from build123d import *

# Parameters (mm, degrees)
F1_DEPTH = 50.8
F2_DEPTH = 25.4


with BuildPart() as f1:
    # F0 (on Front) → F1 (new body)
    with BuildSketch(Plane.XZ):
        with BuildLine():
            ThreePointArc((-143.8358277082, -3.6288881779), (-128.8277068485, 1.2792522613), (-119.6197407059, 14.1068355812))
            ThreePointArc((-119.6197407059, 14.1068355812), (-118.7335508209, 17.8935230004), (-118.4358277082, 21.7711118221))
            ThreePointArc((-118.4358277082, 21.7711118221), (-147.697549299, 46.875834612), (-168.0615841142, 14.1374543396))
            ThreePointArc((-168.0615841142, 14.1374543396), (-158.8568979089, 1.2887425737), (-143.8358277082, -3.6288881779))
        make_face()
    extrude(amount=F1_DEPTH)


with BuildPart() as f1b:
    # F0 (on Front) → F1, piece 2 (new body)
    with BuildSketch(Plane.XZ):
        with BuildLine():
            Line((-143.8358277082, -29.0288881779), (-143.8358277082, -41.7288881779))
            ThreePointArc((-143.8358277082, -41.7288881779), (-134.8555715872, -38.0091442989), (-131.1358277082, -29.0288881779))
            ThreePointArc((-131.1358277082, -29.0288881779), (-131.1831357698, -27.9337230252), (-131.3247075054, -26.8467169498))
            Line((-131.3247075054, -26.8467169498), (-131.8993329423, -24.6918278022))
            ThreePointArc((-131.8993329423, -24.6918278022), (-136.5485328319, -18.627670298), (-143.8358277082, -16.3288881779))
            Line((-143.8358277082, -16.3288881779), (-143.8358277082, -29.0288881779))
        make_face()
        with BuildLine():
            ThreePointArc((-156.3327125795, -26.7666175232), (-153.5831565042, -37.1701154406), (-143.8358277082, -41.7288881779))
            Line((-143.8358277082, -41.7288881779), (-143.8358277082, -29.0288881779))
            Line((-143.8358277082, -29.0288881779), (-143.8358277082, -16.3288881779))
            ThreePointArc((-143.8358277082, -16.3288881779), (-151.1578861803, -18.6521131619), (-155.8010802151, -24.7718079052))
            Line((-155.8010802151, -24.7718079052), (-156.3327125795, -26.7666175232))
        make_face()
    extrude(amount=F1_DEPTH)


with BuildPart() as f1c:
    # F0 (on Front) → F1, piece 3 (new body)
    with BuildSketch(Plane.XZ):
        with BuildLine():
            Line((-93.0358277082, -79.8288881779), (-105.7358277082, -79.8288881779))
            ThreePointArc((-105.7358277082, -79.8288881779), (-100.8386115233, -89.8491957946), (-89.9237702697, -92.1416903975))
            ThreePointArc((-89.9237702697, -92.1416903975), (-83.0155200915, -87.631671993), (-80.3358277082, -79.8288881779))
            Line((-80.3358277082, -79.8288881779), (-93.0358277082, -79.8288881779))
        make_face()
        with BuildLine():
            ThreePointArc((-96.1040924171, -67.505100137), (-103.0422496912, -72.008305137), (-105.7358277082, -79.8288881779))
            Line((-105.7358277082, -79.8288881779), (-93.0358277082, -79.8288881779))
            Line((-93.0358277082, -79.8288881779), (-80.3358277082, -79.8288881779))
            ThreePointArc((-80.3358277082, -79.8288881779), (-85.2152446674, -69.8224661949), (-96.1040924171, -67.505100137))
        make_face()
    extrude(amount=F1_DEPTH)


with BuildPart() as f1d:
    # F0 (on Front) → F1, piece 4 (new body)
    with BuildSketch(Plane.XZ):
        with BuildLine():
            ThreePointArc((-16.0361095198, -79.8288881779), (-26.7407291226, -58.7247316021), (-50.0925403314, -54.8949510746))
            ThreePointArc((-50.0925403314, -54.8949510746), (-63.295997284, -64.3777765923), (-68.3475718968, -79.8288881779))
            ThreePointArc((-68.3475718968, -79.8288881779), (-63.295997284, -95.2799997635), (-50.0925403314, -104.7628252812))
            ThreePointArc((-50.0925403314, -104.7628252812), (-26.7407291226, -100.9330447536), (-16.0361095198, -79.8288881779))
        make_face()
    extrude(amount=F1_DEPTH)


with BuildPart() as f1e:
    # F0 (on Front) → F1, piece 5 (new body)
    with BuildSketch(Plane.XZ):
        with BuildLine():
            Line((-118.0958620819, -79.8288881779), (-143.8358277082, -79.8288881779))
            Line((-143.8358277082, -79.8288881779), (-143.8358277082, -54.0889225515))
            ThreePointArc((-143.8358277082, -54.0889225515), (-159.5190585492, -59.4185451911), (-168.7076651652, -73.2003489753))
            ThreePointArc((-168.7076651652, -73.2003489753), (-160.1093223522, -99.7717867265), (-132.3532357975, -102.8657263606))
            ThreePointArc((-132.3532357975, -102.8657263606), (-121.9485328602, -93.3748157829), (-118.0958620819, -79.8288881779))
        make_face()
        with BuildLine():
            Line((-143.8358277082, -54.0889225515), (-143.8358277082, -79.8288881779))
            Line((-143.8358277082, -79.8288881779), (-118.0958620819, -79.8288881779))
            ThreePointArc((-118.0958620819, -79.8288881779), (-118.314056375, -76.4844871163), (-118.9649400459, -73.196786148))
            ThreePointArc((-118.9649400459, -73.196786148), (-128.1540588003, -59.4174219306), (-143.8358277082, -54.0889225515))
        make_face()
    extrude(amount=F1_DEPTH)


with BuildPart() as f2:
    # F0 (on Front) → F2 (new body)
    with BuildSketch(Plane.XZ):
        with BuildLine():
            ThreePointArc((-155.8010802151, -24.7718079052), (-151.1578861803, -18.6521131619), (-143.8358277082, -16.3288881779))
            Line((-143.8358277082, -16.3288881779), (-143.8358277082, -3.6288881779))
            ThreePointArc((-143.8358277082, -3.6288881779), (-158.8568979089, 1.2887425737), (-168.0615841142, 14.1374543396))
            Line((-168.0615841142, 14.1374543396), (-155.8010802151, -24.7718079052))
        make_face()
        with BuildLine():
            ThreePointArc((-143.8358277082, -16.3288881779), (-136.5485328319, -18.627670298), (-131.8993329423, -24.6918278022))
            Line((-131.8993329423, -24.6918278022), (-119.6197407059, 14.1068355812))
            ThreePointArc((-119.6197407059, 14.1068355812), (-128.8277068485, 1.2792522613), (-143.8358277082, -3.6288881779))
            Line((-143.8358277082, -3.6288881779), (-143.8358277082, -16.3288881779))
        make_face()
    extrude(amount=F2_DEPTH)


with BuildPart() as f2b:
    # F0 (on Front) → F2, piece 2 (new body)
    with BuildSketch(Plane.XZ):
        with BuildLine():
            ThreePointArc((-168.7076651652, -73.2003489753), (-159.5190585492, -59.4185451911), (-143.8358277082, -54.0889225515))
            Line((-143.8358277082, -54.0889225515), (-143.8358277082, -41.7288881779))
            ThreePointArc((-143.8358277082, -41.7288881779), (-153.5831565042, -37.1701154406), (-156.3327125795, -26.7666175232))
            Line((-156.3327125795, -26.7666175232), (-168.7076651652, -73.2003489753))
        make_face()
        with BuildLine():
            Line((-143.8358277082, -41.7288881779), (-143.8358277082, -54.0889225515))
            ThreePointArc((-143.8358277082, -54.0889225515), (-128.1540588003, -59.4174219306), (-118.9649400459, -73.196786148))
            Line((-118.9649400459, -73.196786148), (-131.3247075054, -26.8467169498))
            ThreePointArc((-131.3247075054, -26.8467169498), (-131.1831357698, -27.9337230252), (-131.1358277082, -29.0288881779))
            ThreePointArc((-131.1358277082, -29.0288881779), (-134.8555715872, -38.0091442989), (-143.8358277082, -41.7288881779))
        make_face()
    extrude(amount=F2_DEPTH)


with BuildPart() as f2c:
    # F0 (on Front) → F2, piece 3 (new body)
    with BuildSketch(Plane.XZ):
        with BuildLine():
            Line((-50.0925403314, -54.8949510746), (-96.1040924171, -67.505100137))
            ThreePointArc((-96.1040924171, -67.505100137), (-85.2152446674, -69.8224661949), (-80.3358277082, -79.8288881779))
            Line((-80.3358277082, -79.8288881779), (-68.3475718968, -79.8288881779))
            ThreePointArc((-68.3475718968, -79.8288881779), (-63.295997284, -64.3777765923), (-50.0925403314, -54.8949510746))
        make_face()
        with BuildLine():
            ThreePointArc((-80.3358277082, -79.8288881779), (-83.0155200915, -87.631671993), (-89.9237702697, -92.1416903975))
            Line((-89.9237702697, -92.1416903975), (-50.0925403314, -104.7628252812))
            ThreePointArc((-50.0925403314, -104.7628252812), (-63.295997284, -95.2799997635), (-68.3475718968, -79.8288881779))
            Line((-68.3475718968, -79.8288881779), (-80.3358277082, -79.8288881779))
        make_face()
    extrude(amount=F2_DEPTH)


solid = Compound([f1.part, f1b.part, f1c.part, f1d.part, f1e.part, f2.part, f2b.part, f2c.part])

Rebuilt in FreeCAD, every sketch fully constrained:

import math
import FreeCAD as App
import Part
import Sketcher
from FreeCAD import Vector
Q = App.Units.Quantity

doc = App.newDocument("Part")
body = doc.addObject("PartDesign::Body", "Body")

# Sketch on XZ plane
sketch1 = body.newObject("Sketcher::SketchObject", "Sketch")
sketch1.AttachmentSupport = (doc.getObject("XZ_Plane"), [""])
sketch1.MapMode = "FlatFace"
sketch1.addGeometry(Part.ArcOfCircle(Part.Circle(Vector(-144, 22, 0), Vector(0, 0, 1), 25), math.radians(-17.56), math.radians(0)), False)
sketch1.addGeometry(Part.ArcOfCircle(Part.Circle(Vector(-144, 22, 0), Vector(0, 0, 1), 25), math.radians(0), math.radians(342)), False)
sketch1.addConstraint(Sketcher.Constraint("Tangent", 0, 1, 1, 2))
sketch1.addConstraint(Sketcher.Constraint("Coincident", 1, 1, 0, 2))
sketch1.addConstraint(Sketcher.Constraint("Horizontal", 0, 3, 1, 1))
sketch1.addConstraint(Sketcher.Constraint("Radius", 0, Q("1 in")))
sketch1.addConstraint(Sketcher.Constraint("DistanceY", -1, 1, 0, 3, 21.771112))
sketch1.addConstraint(Sketcher.Constraint("DistanceX", 0, 1, -1, 1, 119.619741))
sketch1.addConstraint(Sketcher.Constraint("DistanceX", 0, 3, -1, 1, 143.835828))
pad1 = body.newObject("PartDesign::Pad", "Pad")
pad1.Profile = sketch1
pad1.Length = Q("2 in")
body2 = doc.addObject("PartDesign::Body", "Body001")

# Sketch on XZ plane
sketch2 = body2.newObject("Sketcher::SketchObject", "Sketch001")
sketch2.AttachmentSupport = (doc.getObject("XZ_Plane001"), [""])
sketch2.MapMode = "FlatFace"
sketch2.addGeometry(Part.ArcOfCircle(Part.Circle(Vector(-143.8, -29, 0), Vector(0, 0, 1), 12.7), math.radians(-90), math.radians(0)), False)
sketch2.addGeometry(Part.ArcOfCircle(Part.Circle(Vector(-143.8, -29, 0), Vector(0, 0, 1), 12.7), math.radians(0), math.radians(9.89)), False)
sketch2.addGeometry(Part.LineSegment(Vector(-131.3, -26.8, 0), Vector(-131.9, -24.7, 0)), False)
sketch2.addGeometry(Part.ArcOfCircle(Part.Circle(Vector(-143.8, -29, 0), Vector(0, 0, 1), 12.7), math.radians(20), math.radians(90)), False)
sketch2.addGeometry(Part.ArcOfCircle(Part.Circle(Vector(-143.8, -29, 0), Vector(0, 0, 1), 12.7), math.radians(90), math.radians(160)), False)
sketch2.addGeometry(Part.LineSegment(Vector(-155.8, -24.8, 0), Vector(-156.3, -26.8, 0)), False)
sketch2.addGeometry(Part.ArcOfCircle(Part.Circle(Vector(-143.8, -29, 0), Vector(0, 0, 1), 12.7), math.radians(170), math.radians(270)), False)
sketch2.addConstraint(Sketcher.Constraint("Tangent", 0, 2, 1, 1))
sketch2.addConstraint(Sketcher.Constraint("Coincident", 1, 2, 2, 1))
sketch2.addConstraint(Sketcher.Constraint("Coincident", 2, 2, 3, 1))
sketch2.addConstraint(Sketcher.Constraint("Tangent", 3, 2, 4, 1))
sketch2.addConstraint(Sketcher.Constraint("Coincident", 4, 2, 5, 1))
sketch2.addConstraint(Sketcher.Constraint("Coincident", 5, 2, 6, 1))
sketch2.addConstraint(Sketcher.Constraint("Tangent", 6, 2, 0, 1))
sketch2.addConstraint(Sketcher.Constraint("Coincident", 3, 3, 0, 3))
sketch2.addConstraint(Sketcher.Constraint("Equal", 0, 1))
sketch2.addConstraint(Sketcher.Constraint("Equal", 1, 3))
sketch2.addConstraint(Sketcher.Constraint("Equal", 3, 4))
sketch2.addConstraint(Sketcher.Constraint("Equal", 4, 6))
sketch2.addConstraint(Sketcher.Constraint("Horizontal", 6, 3, 0, 2))
sketch2.addConstraint(Sketcher.Constraint("Vertical", 6, 3, 3, 2))
sketch2.addConstraint(Sketcher.Constraint("Vertical", 3, 2, 6, 2))
sketch2.addConstraint(Sketcher.Constraint("Radius", 0, Q("0.5 in")))
sketch2.addConstraint(Sketcher.Constraint("Distance", 2, 2.230189))
sketch2.addConstraint(Sketcher.Constraint("DistanceY", 0, 3, -1, 1, 29.028888))
sketch2.addConstraint(Sketcher.Constraint("DistanceX", 4, 2, -1, 1, 155.80108))
sketch2.addConstraint(Sketcher.Constraint("DistanceX", 1, 2, 0, 2, 0.18888))
sketch2.addConstraint(Sketcher.Constraint("DistanceY", 0, 3, 4, 2, 4.25708))
sketch2.addConstraint(Sketcher.Constraint("DistanceY", 5, 2, 4, 2, 1.99481))
pad2 = body2.newObject("PartDesign::Pad", "Pad001")
pad2.Profile = sketch2
pad2.Length = Q("2 in")
body3 = doc.addObject("PartDesign::Body", "Body002")

# Sketch on XZ plane
sketch3 = body3.newObject("Sketcher::SketchObject", "Sketch002")
sketch3.AttachmentSupport = (doc.getObject("XZ_Plane002"), [""])
sketch3.MapMode = "FlatFace"
sketch3.addGeometry(Part.ArcOfCircle(Part.Circle(Vector(-93, -80, 0), Vector(0, 0, 1), 13), math.radians(180), math.radians(284)), False)
sketch3.addGeometry(Part.ArcOfCircle(Part.Circle(Vector(-93, -80, 0), Vector(0, 0, 1), 13), math.radians(-76), math.radians(0)), False)
sketch3.addGeometry(Part.ArcOfCircle(Part.Circle(Vector(-93, -80, 0), Vector(0, 0, 1), 13), math.radians(0), math.radians(104)), False)
sketch3.addGeometry(Part.ArcOfCircle(Part.Circle(Vector(-93, -80, 0), Vector(0, 0, 1), 13), math.radians(104), math.radians(180)), False)
sketch3.addConstraint(Sketcher.Constraint("Tangent", 0, 2, 1, 1))
sketch3.addConstraint(Sketcher.Constraint("Tangent", 1, 2, 2, 1))
sketch3.addConstraint(Sketcher.Constraint("Tangent", 2, 2, 3, 1))
sketch3.addConstraint(Sketcher.Constraint("Tangent", 3, 2, 0, 1))
sketch3.addConstraint(Sketcher.Constraint("Equal", 0, 1))
sketch3.addConstraint(Sketcher.Constraint("Horizontal", 3, 3, 1, 2))
sketch3.addConstraint(Sketcher.Constraint("Horizontal", 1, 2, 3, 2))
sketch3.addConstraint(Sketcher.Constraint("Radius", 0, Q("0.5 in")))
sketch3.addConstraint(Sketcher.Constraint("DistanceY", 2, 2, -1, 1, 67.5051))
sketch3.addConstraint(Sketcher.Constraint("DistanceY", 0, 3, -1, 1, 79.828888))
sketch3.addConstraint(Sketcher.Constraint("DistanceX", 0, 2, -1, 1, 89.92377))
sketch3.addConstraint(Sketcher.Constraint("DistanceY", 0, 2, -1, 1, 92.14169))
pad3 = body3.newObject("PartDesign::Pad", "Pad002")
pad3.Profile = sketch3
pad3.Length = Q("2 in")
body4 = doc.addObject("PartDesign::Body", "Body003")

# Sketch on XZ plane
sketch4 = body4.newObject("Sketcher::SketchObject", "Sketch003")
sketch4.AttachmentSupport = (doc.getObject("XZ_Plane003"), [""])
sketch4.MapMode = "FlatFace"
sketch4.addGeometry(Part.ArcOfCircle(Part.Circle(Vector(-42, -80, 0), Vector(0, 0, 1), 26), math.radians(0), math.radians(108)), False)
sketch4.addGeometry(Part.ArcOfCircle(Part.Circle(Vector(-42, -80, 0), Vector(0, 0, 1), 26), math.radians(108), math.radians(180)), False)
sketch4.addGeometry(Part.ArcOfCircle(Part.Circle(Vector(-42, -80, 0), Vector(0, 0, 1), 26), math.radians(180), math.radians(252)), False)
sketch4.addGeometry(Part.ArcOfCircle(Part.Circle(Vector(-42, -80, 0), Vector(0, 0, 1), 26), math.radians(-108), math.radians(0)), False)
sketch4.addConstraint(Sketcher.Constraint("Tangent", 0, 2, 1, 1))
sketch4.addConstraint(Sketcher.Constraint("Tangent", 1, 2, 2, 1))
sketch4.addConstraint(Sketcher.Constraint("Tangent", 2, 2, 3, 1))
sketch4.addConstraint(Sketcher.Constraint("Tangent", 3, 2, 0, 1))
sketch4.addConstraint(Sketcher.Constraint("Equal", 0, 1))
sketch4.addConstraint(Sketcher.Constraint("Horizontal", 3, 3, 1, 2))
sketch4.addConstraint(Sketcher.Constraint("Horizontal", 1, 2, 3, 2))
sketch4.addConstraint(Sketcher.Constraint("Vertical", 0, 2, 2, 2))
sketch4.addConstraint(Sketcher.Constraint("Radius", 0, 26.155731))
sketch4.addConstraint(Sketcher.Constraint("DistanceX", 0, 2, 0, 3, 7.9007))
sketch4.addConstraint(Sketcher.Constraint("DistanceX", 0, 3, -1, 1, 42.191841))
sketch4.addConstraint(Sketcher.Constraint("DistanceY", 0, 3, -1, 1, 79.828888))
pad4 = body4.newObject("PartDesign::Pad", "Pad003")
pad4.Profile = sketch4
pad4.Length = Q("2 in")
body5 = doc.addObject("PartDesign::Body", "Body004")

# Sketch on XZ plane
sketch5 = body5.newObject("Sketcher::SketchObject", "Sketch004")
sketch5.AttachmentSupport = (doc.getObject("XZ_Plane004"), [""])
sketch5.MapMode = "FlatFace"
sketch5.addGeometry(Part.ArcOfCircle(Part.Circle(Vector(-144, -80, 0), Vector(0, 0, 1), 26), math.radians(90), math.radians(165)), False)
sketch5.addGeometry(Part.ArcOfCircle(Part.Circle(Vector(-144, -80, 0), Vector(0, 0, 1), 26), math.radians(165), math.radians(296)), False)
sketch5.addGeometry(Part.ArcOfCircle(Part.Circle(Vector(-144, -80, 0), Vector(0, 0, 1), 26), math.radians(-64), math.radians(0)), False)
sketch5.addGeometry(Part.ArcOfCircle(Part.Circle(Vector(-144, -80, 0), Vector(0, 0, 1), 26), math.radians(0), math.radians(14.93)), False)
sketch5.addGeometry(Part.ArcOfCircle(Part.Circle(Vector(-144, -80, 0), Vector(0, 0, 1), 26), math.radians(15), math.radians(90)), False)
sketch5.addConstraint(Sketcher.Constraint("Tangent", 0, 2, 1, 1))
sketch5.addConstraint(Sketcher.Constraint("Tangent", 1, 2, 2, 1))
sketch5.addConstraint(Sketcher.Constraint("Tangent", 2, 2, 3, 1))
sketch5.addConstraint(Sketcher.Constraint("Tangent", 3, 2, 4, 1))
sketch5.addConstraint(Sketcher.Constraint("Tangent", 4, 2, 0, 1))
sketch5.addConstraint(Sketcher.Constraint("Coincident", 2, 3, 0, 3))
sketch5.addConstraint(Sketcher.Constraint("Horizontal", 4, 3, 2, 2))
sketch5.addConstraint(Sketcher.Constraint("Vertical", 3, 3, 4, 2))
sketch5.addConstraint(Sketcher.Constraint("Radius", 0, 25.739966))
sketch5.addConstraint(Sketcher.Constraint("DistanceY", 0, 3, -1, 1, 79.828888))
sketch5.addConstraint(Sketcher.Constraint("DistanceY", 0, 2, -1, 1, 73.200349))
sketch5.addConstraint(Sketcher.Constraint("DistanceX", 3, 2, -1, 1, 118.96494))
sketch5.addConstraint(Sketcher.Constraint("DistanceX", 3, 3, 1, 2, 11.482592))
sketch5.addConstraint(Sketcher.Constraint("DistanceX", 0, 3, -1, 1, 143.835828))
pad5 = body5.newObject("PartDesign::Pad", "Pad004")
pad5.Profile = sketch5
pad5.Length = Q("2 in")
body6 = doc.addObject("PartDesign::Body", "Body005")

# Sketch on XZ plane
sketch6 = body6.newObject("Sketcher::SketchObject", "Sketch005")
sketch6.AttachmentSupport = (doc.getObject("XZ_Plane005"), [""])
sketch6.MapMode = "FlatFace"
sketch6.addGeometry(Part.ArcOfCircle(Part.Circle(Vector(-144, -29, 0), Vector(0, 0, 1), 13), math.radians(90), math.radians(160)), False)
sketch6.addGeometry(Part.ArcOfCircle(Part.Circle(Vector(-144, -29, 0), Vector(0, 0, 1), 13), math.radians(20), math.radians(90)), False)
sketch6.addGeometry(Part.LineSegment(Vector(-132, -25, 0), Vector(-120, 14, 0)), False)
sketch6.addGeometry(Part.ArcOfCircle(Part.Circle(Vector(-144, 22, 0), Vector(0, 0, 1), 25), math.radians(-163), math.radians(-18)), False)
sketch6.addGeometry(Part.LineSegment(Vector(-168, 14, 0), Vector(-156, -25, 0)), False)
sketch6.addConstraint(Sketcher.Constraint("Tangent", 0, 1, 1, 2))
sketch6.addConstraint(Sketcher.Constraint("Coincident", 1, 1, 2, 1))
sketch6.addConstraint(Sketcher.Constraint("Tangent", 2, 2, 3, 2))
sketch6.addConstraint(Sketcher.Constraint("Tangent", 3, 1, 4, 1))
sketch6.addConstraint(Sketcher.Constraint("Coincident", 4, 2, 0, 2))
sketch6.addConstraint(Sketcher.Constraint("Equal", 0, 1))
sketch6.addConstraint(Sketcher.Constraint("Vertical", 1, 3, 3, 3))
sketch6.addConstraint(Sketcher.Constraint("Vertical", 3, 3, 0, 1))
sketch6.addConstraint(Sketcher.Constraint("Radius", 3, Q("1 in")))
sketch6.addConstraint(Sketcher.Constraint("Radius", 0, Q("0.5 in")))
sketch6.addConstraint(Sketcher.Constraint("DistanceY", 0, 3, 3, 3, Q("2 in")))
sketch6.addConstraint(Sketcher.Constraint("Distance", 2, 40.695512))
sketch6.addConstraint(Sketcher.Constraint("Distance", 4, 40.795228))
sketch6.addConstraint(Sketcher.Constraint("DistanceY", 0, 3, -1, 1, 29.028888))
sketch6.addConstraint(Sketcher.Constraint("DistanceX", 2, 2, -1, 1, 119.619741))
pad6 = body6.newObject("PartDesign::Pad", "Pad005")
pad6.Profile = sketch6
pad6.Length = Q("1 in")
body7 = doc.addObject("PartDesign::Body", "Body006")

# Sketch on XZ plane
sketch7 = body7.newObject("Sketcher::SketchObject", "Sketch006")
sketch7.AttachmentSupport = (doc.getObject("XZ_Plane006"), [""])
sketch7.MapMode = "FlatFace"
sketch7.addGeometry(Part.ArcOfCircle(Part.Circle(Vector(-143.8, -79.8, 0), Vector(0, 0, 1), 25.7), math.radians(90), math.radians(165)), False)
sketch7.addGeometry(Part.ArcOfCircle(Part.Circle(Vector(-143.8, -79.8, 0), Vector(0, 0, 1), 25.7), math.radians(15), math.radians(90)), False)
sketch7.addGeometry(Part.LineSegment(Vector(-119, -73.2, 0), Vector(-131.3, -26.8, 0)), False)
sketch7.addGeometry(Part.ArcOfCircle(Part.Circle(Vector(-143.8, -29, 0), Vector(0, 0, 1), 12.7), math.radians(0), math.radians(9.89)), False)
sketch7.addGeometry(Part.ArcOfCircle(Part.Circle(Vector(-143.8, -29, 0), Vector(0, 0, 1), 12.7), math.radians(-90), math.radians(0)), False)
sketch7.addGeometry(Part.ArcOfCircle(Part.Circle(Vector(-143.8, -29, 0), Vector(0, 0, 1), 12.7), math.radians(170), math.radians(270)), False)
sketch7.addGeometry(Part.LineSegment(Vector(-156.3, -26.8, 0), Vector(-168.7, -73.2, 0)), False)
sketch7.addConstraint(Sketcher.Constraint("Tangent", 0, 1, 1, 2))
sketch7.addConstraint(Sketcher.Constraint("Tangent", 1, 1, 2, 1))
sketch7.addConstraint(Sketcher.Constraint("Coincident", 2, 2, 3, 2))
sketch7.addConstraint(Sketcher.Constraint("Tangent", 3, 1, 4, 2))
sketch7.addConstraint(Sketcher.Constraint("Tangent", 4, 1, 5, 2))
sketch7.addConstraint(Sketcher.Constraint("Coincident", 5, 1, 6, 1))
sketch7.addConstraint(Sketcher.Constraint("Tangent", 6, 2, 0, 2))
sketch7.addConstraint(Sketcher.Constraint("Coincident", 5, 3, 3, 3))
sketch7.addConstraint(Sketcher.Constraint("Equal", 0, 1))
sketch7.addConstraint(Sketcher.Constraint("Horizontal", 5, 3, 3, 1))
sketch7.addConstraint(Sketcher.Constraint("Vertical", 1, 3, 3, 3))
sketch7.addConstraint(Sketcher.Constraint("Vertical", 5, 3, 0, 1))
sketch7.addConstraint(Sketcher.Constraint("Vertical", 0, 1, 4, 1))
sketch7.addConstraint(Sketcher.Constraint("Radius", 3, Q("0.5 in")))
sketch7.addConstraint(Sketcher.Constraint("DistanceY", 0, 3, 3, 3, Q("2 in")))
sketch7.addConstraint(Sketcher.Constraint("Radius", 0, 25.739966))
sketch7.addConstraint(Sketcher.Constraint("DistanceY", 2, 2, 5, 1, 0.080099))
sketch7.addConstraint(Sketcher.Constraint("DistanceY", 0, 3, -1, 1, 79.828888))
sketch7.addConstraint(Sketcher.Constraint("DistanceX", 1, 1, -1, 1, 118.96494))
sketch7.addConstraint(Sketcher.Constraint("DistanceY", 6, 2, -1, 1, 73.200349))
pad7 = body7.newObject("PartDesign::Pad", "Pad006")
pad7.Profile = sketch7
pad7.Length = Q("1 in")
body8 = doc.addObject("PartDesign::Body", "Body007")

# Sketch on XZ plane
sketch8 = body8.newObject("Sketcher::SketchObject", "Sketch007")
sketch8.AttachmentSupport = (doc.getObject("XZ_Plane007"), [""])
sketch8.MapMode = "FlatFace"
sketch8.addGeometry(Part.LineSegment(Vector(-50, -55, 0), Vector(-96, -68, 0)), False)
sketch8.addGeometry(Part.ArcOfCircle(Part.Circle(Vector(-93, -80, 0), Vector(0, 0, 1), 13), math.radians(0), math.radians(104)), False)
sketch8.addGeometry(Part.ArcOfCircle(Part.Circle(Vector(-93, -80, 0), Vector(0, 0, 1), 13), math.radians(-76), math.radians(0)), False)
sketch8.addGeometry(Part.LineSegment(Vector(-90, -92, 0), Vector(-50, -105, 0)), False)
sketch8.addGeometry(Part.ArcOfCircle(Part.Circle(Vector(-42, -80, 0), Vector(0, 0, 1), 26), math.radians(180), math.radians(252)), False)
sketch8.addGeometry(Part.ArcOfCircle(Part.Circle(Vector(-42, -80, 0), Vector(0, 0, 1), 26), math.radians(108), math.radians(180)), False)
sketch8.addConstraint(Sketcher.Constraint("Coincident", 0, 2, 1, 2))
sketch8.addConstraint(Sketcher.Constraint("Tangent", 1, 1, 2, 2))
sketch8.addConstraint(Sketcher.Constraint("Coincident", 2, 1, 3, 1))
sketch8.addConstraint(Sketcher.Constraint("Tangent", 3, 2, 4, 2))
sketch8.addConstraint(Sketcher.Constraint("Tangent", 4, 1, 5, 2))
sketch8.addConstraint(Sketcher.Constraint("Coincident", 5, 1, 0, 1))
sketch8.addConstraint(Sketcher.Constraint("Equal", 1, 2))
sketch8.addConstraint(Sketcher.Constraint("Equal", 4, 5))
sketch8.addConstraint(Sketcher.Constraint("Horizontal", 2, 3, 4, 3))
sketch8.addConstraint(Sketcher.Constraint("Horizontal", 5, 3, 1, 1))
sketch8.addConstraint(Sketcher.Constraint("Horizontal", 1, 1, 4, 1))
sketch8.addConstraint(Sketcher.Constraint("Vertical", 3, 2, 5, 1))
sketch8.addConstraint(Sketcher.Constraint("Radius", 1, Q("0.5 in")))
sketch8.addConstraint(Sketcher.Constraint("Radius", 4, 26.155731))
sketch8.addConstraint(Sketcher.Constraint("DistanceY", 0, 2, -1, 1, 67.5051))
sketch8.addConstraint(Sketcher.Constraint("DistanceX", 3, 2, 4, 3, 7.9007))
sketch8.addConstraint(Sketcher.Constraint("DistanceX", 2, 1, 4, 1, 21.576198))
sketch8.addConstraint(Sketcher.Constraint("DistanceY", 1, 3, -1, 1, 79.828888))
sketch8.addConstraint(Sketcher.Constraint("DistanceX", 4, 3, -1, 1, 42.191841))
pad8 = body8.newObject("PartDesign::Pad", "Pad007")
pad8.Profile = sketch8
pad8.Length = Q("1 in")

doc.recompute()
